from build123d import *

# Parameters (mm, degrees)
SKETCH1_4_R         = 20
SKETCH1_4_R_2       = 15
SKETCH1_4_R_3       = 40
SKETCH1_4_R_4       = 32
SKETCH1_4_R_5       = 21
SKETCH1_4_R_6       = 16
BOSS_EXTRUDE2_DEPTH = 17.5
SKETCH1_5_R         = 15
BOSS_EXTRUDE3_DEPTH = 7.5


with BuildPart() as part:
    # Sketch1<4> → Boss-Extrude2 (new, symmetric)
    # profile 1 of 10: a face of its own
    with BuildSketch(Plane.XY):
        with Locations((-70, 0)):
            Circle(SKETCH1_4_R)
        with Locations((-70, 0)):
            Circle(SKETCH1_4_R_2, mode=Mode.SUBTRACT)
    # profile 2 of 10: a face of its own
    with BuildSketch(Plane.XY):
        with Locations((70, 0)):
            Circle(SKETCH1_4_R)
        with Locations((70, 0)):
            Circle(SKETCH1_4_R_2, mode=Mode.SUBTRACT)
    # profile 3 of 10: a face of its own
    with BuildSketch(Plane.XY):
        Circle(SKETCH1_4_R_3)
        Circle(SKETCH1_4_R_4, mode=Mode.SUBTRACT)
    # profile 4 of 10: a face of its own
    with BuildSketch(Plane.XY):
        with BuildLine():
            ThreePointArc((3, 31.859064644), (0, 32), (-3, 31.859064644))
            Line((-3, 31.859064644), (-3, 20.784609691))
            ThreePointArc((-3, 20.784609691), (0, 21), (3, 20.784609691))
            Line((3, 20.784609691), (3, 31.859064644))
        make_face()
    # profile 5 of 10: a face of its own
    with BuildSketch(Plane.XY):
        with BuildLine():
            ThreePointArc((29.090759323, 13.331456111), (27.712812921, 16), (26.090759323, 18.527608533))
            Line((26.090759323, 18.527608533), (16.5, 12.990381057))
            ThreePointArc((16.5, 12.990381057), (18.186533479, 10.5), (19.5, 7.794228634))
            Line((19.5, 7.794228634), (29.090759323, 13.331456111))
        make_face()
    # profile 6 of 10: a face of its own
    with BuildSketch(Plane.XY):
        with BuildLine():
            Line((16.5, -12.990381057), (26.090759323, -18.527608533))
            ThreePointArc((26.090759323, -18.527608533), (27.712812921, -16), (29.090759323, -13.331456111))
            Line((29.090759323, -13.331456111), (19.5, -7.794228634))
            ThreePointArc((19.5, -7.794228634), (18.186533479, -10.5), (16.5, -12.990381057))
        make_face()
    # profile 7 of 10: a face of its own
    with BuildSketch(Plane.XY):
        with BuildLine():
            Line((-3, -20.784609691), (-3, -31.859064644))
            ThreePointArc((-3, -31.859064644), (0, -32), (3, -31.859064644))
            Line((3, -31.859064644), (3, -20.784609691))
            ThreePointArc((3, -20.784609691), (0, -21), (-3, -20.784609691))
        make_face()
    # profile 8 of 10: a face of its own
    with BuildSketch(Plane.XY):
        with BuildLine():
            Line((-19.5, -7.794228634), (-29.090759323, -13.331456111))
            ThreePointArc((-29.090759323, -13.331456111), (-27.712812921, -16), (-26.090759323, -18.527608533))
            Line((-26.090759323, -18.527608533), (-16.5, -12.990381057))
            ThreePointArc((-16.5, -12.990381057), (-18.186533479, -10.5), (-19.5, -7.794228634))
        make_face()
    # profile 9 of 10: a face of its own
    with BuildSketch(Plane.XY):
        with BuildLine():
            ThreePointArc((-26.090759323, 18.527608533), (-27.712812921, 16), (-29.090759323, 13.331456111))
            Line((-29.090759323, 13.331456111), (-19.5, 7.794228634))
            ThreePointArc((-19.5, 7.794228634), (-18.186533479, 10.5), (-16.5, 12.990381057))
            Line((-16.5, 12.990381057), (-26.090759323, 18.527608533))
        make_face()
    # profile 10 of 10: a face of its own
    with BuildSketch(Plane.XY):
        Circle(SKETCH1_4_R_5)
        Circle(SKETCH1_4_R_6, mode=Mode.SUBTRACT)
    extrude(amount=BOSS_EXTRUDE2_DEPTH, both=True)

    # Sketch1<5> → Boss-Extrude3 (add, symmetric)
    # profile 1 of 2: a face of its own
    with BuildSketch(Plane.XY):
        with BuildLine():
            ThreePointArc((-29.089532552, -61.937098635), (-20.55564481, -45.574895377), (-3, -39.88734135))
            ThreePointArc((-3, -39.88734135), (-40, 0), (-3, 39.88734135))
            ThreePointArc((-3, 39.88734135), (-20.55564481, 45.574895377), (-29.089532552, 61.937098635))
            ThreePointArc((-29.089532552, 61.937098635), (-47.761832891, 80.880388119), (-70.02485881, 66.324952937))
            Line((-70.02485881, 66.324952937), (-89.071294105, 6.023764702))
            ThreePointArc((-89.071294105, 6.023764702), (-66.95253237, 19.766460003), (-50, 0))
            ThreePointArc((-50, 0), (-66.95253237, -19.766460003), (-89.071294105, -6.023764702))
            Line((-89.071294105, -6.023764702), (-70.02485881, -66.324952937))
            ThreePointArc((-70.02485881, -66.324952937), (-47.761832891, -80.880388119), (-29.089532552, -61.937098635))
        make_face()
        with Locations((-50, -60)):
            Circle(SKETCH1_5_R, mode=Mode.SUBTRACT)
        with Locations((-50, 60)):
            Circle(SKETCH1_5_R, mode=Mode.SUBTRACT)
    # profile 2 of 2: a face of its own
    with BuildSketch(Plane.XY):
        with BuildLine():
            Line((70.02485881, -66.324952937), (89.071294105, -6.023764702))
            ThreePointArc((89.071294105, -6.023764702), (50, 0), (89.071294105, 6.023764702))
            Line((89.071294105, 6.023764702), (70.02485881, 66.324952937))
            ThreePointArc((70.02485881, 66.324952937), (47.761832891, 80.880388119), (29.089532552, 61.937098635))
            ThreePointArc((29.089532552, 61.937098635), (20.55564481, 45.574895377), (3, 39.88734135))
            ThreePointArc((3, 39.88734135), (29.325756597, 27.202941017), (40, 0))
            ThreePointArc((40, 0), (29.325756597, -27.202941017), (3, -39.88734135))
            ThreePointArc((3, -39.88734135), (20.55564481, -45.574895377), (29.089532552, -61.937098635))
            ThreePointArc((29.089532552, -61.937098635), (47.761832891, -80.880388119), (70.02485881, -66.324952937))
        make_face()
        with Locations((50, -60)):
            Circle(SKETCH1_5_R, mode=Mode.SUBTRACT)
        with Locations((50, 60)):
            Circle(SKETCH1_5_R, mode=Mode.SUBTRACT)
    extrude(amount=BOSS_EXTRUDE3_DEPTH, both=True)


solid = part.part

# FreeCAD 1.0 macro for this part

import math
import FreeCAD as App
import Part
import Sketcher
Q = App.Units.Quantity

doc = App.newDocument("Part")
params = doc.addObject("Spreadsheet::Sheet", "Params")
for row, (alias, value) in enumerate([
    ("sketch1_diameter", "40 mm"),
    ("sketch1_diameter2", "30 mm"),
    ("sketch1_diameter3", "80 mm"),
    ("sketch1_diameter4", "32 mm"),
    ("sketch1_radius", "32 mm"),
    ("pad1_length", "35 mm"),
    ("sketch2_diameter", "30 mm"),
    ("sketch2_radius", "40 mm"),
    ("sketch2_radius2", "21 mm"),
    ("sketch2_radius3", "20 mm"),
    ("pad2_length", "15 mm"),
], start=1):
    params.set(f"A{row}", alias)
    params.set(f"B{row}", "=" + value)
    params.setAlias(f"B{row}", alias)

body = doc.addObject("PartDesign::Body", "Body")
body.AllowCompound = True

# Sketch on XY plane
sketch1 = body.newObject("Sketcher::SketchObject", "Sketch")
sketch1.AttachmentSupport = (doc.getObject("XY_Plane"), [""])
sketch1.MapMode = "FlatFace"
sketch1.addGeometry(Part.Circle(App.Vector(-70, 0, 0), App.Vector(0, 0, 1), 20), False)
sketch1.addGeometry(Part.Circle(App.Vector(-70, 0, 0), App.Vector(0, 0, 1), 15), False)
sketch1.addGeometry(Part.Circle(App.Vector(70, 0, 0), App.Vector(0, 0, 1), 20), False)
sketch1.addGeometry(Part.Circle(App.Vector(70, 0, 0), App.Vector(0, 0, 1), 15), False)
sketch1.addGeometry(Part.Circle(App.Vector(0, 0, 0), App.Vector(0, 0, 1), 40), False)
sketch1.addGeometry(Part.ArcOfCircle(Part.Circle(App.Vector(0, 0, 0), App.Vector(0, 0, 1), 32), math.radians(-24.620621), math.radians(24.620621)), False)
sketch1.addGeometry(Part.LineSegment(App.Vector(29.090759, -13.331456, 0), App.Vector(19.5, -7.794229, 0)), False)
sketch1.addGeometry(Part.ArcOfCircle(Part.Circle(App.Vector(0, 0, 0), App.Vector(0, 0, 1), 21), math.radians(-21.786789), math.radians(21.786789)), False)
sketch1.addGeometry(Part.LineSegment(App.Vector(19.5, 7.794229, 0), App.Vector(29.090759, 13.331456, 0)), False)
sketch1.addGeometry(Part.ArcOfCircle(Part.Circle(App.Vector(0, 0, 0), App.Vector(0, 0, 1), 32), math.radians(35.379379), math.radians(84.620621)), False)
sketch1.addGeometry(Part.LineSegment(App.Vector(26.090759, 18.527609, 0), App.Vector(16.5, 12.990381, 0)), False)
sketch1.addGeometry(Part.ArcOfCircle(Part.Circle(App.Vector(0, 0, 0), App.Vector(0, 0, 1), 21), math.radians(38.213211), math.radians(81.786789)), False)
sketch1.addGeometry(Part.LineSegment(App.Vector(3, 20.78461, 0), App.Vector(3, 31.859065, 0)), False)
sketch1.addGeometry(Part.ArcOfCircle(Part.Circle(App.Vector(0, 0, 0), App.Vector(0, 0, 1), 32), math.radians(95.379379), math.radians(144.620621)), False)
sketch1.addGeometry(Part.LineSegment(App.Vector(-3, 31.859065, 0), App.Vector(-3, 20.78461, 0)), False)
sketch1.addGeometry(Part.ArcOfCircle(Part.Circle(App.Vector(0, 0, 0), App.Vector(0, 0, 1), 21), math.radians(98.213211), math.radians(141.786789)), False)
sketch1.addGeometry(Part.LineSegment(App.Vector(-16.5, 12.990381, 0), App.Vector(-26.090759, 18.527609, 0)), False)
sketch1.addGeometry(Part.ArcOfCircle(Part.Circle(App.Vector(0, 0, 0), App.Vector(0, 0, 1), 32), math.radians(155.379379), math.radians(204.620621)), False)
sketch1.addGeometry(Part.LineSegment(App.Vector(-29.090759, 13.331456, 0), App.Vector(-19.5, 7.794229, 0)), False)
sketch1.addGeometry(Part.ArcOfCircle(Part.Circle(App.Vector(0, 0, 0), App.Vector(0, 0, 1), 21), math.radians(158.213211), math.radians(201.786789)), False)
sketch1.addGeometry(Part.LineSegment(App.Vector(-19.5, -7.794229, 0), App.Vector(-29.090759, -13.331456, 0)), False)
sketch1.addGeometry(Part.ArcOfCircle(Part.Circle(App.Vector(0, 0, 0), App.Vector(0, 0, 1), 32), math.radians(-144.620621), math.radians(-95.379379)), False)
sketch1.addGeometry(Part.LineSegment(App.Vector(-26.090759, -18.527609, 0), App.Vector(-16.5, -12.990381, 0)), False)
sketch1.addGeometry(Part.ArcOfCircle(Part.Circle(App.Vector(0, 0, 0), App.Vector(0, 0, 1), 21), math.radians(-141.786789), math.radians(-98.213211)), False)
sketch1.addGeometry(Part.LineSegment(App.Vector(-3, -20.78461, 0), App.Vector(-3, -31.859065, 0)), False)
sketch1.addGeometry(Part.ArcOfCircle(Part.Circle(App.Vector(0, 0, 0), App.Vector(0, 0, 1), 32), math.radians(-84.620621), math.radians(-35.379379)), False)
sketch1.addGeometry(Part.LineSegment(App.Vector(3, -31.859065, 0), App.Vector(3, -20.78461, 0)), False)
sketch1.addGeometry(Part.ArcOfCircle(Part.Circle(App.Vector(0, 0, 0), App.Vector(0, 0, 1), 21), math.radians(-81.786789), math.radians(-38.213211)), False)
sketch1.addGeometry(Part.LineSegment(App.Vector(16.5, -12.990381, 0), App.Vector(26.090759, -18.527609, 0)), False)
sketch1.addGeometry(Part.Circle(App.Vector(0, 0, 0), App.Vector(0, 0, 1), 16), False)
sketch1.addConstraint(Sketcher.Constraint("Coincident", 5, 1, 6, 1))
sketch1.addConstraint(Sketcher.Constraint("Coincident", 6, 2, 7, 1))
sketch1.addConstraint(Sketcher.Constraint("Coincident", 7, 2, 8, 1))
sketch1.addConstraint(Sketcher.Constraint("Coincident", 8, 2, 5, 2))
sketch1.addConstraint(Sketcher.Constraint("Coincident", 9, 1, 10, 1))
sketch1.addConstraint(Sketcher.Constraint("Coincident", 10, 2, 11, 1))
sketch1.addConstraint(Sketcher.Constraint("Coincident", 11, 2, 12, 1))
sketch1.addConstraint(Sketcher.Constraint("Coincident", 12, 2, 9, 2))
sketch1.addConstraint(Sketcher.Constraint("Coincident", 13, 1, 14, 1))
sketch1.addConstraint(Sketcher.Constraint("Coincident", 14, 2, 15, 1))
sketch1.addConstraint(Sketcher.Constraint("Coincident", 15, 2, 16, 1))
sketch1.addConstraint(Sketcher.Constraint("Coincident", 16, 2, 13, 2))
sketch1.addConstraint(Sketcher.Constraint("Coincident", 17, 1, 18, 1))
sketch1.addConstraint(Sketcher.Constraint("Coincident", 18, 2, 19, 1))
sketch1.addConstraint(Sketcher.Constraint("Coincident", 19, 2, 20, 1))
sketch1.addConstraint(Sketcher.Constraint("Coincident", 20, 2, 17, 2))
sketch1.addConstraint(Sketcher.Constraint("Coincident", 21, 1, 22, 1))
sketch1.addConstraint(Sketcher.Constraint("Coincident", 22, 2, 23, 1))
sketch1.addConstraint(Sketcher.Constraint("Coincident", 23, 2, 24, 1))
sketch1.addConstraint(Sketcher.Constraint("Coincident", 24, 2, 21, 2))
sketch1.addConstraint(Sketcher.Constraint("Coincident", 25, 1, 26, 1))
sketch1.addConstraint(Sketcher.Constraint("Coincident", 26, 2, 27, 1))
sketch1.addConstraint(Sketcher.Constraint("Coincident", 27, 2, 28, 1))
sketch1.addConstraint(Sketcher.Constraint("Coincident", 28, 2, 25, 2))
sketch1.addConstraint(Sketcher.Constraint("Vertical", 12))
sketch1.addConstraint(Sketcher.Constraint("Vertical", 14))
sketch1.addConstraint(Sketcher.Constraint("Vertical", 24))
sketch1.addConstraint(Sketcher.Constraint("Vertical", 26))
sketch1.addConstraint(Sketcher.Constraint("Coincident", 4, 3, -1, 1))
sketch1.addConstraint(Sketcher.Constraint("Coincident", 5, 3, -1, 1))
sketch1.addConstraint(Sketcher.Constraint("Coincident", 7, 3, -1, 1))
sketch1.addConstraint(Sketcher.Constraint("Coincident", 9, 3, -1, 1))
sketch1.addConstraint(Sketcher.Constraint("Coincident", 11, 3, -1, 1))
sketch1.addConstraint(Sketcher.Constraint("Coincident", 13, 3, -1, 1))
sketch1.addConstraint(Sketcher.Constraint("Coincident", 15, 3, -1, 1))
sketch1.addConstraint(Sketcher.Constraint("Coincident", 17, 3, -1, 1))
sketch1.addConstraint(Sketcher.Constraint("Coincident", 19, 3, -1, 1))
sketch1.addConstraint(Sketcher.Constraint("Coincident", 21, 3, -1, 1))
sketch1.addConstraint(Sketcher.Constraint("Coincident", 23, 3, -1, 1))
sketch1.addConstraint(Sketcher.Constraint("Coincident", 25, 3, -1, 1))
sketch1.addConstraint(Sketcher.Constraint("Coincident", 27, 3, -1, 1))
sketch1.addConstraint(Sketcher.Constraint("Coincident", 29, 3, -1, 1))
sketch1.addConstraint(Sketcher.Constraint("Coincident", 1, 3, 0, 3))
sketch1.addConstraint(Sketcher.Constraint("Coincident", 3, 3, 2, 3))
sketch1.addConstraint(Sketcher.Constraint("Equal", 0, 2))
sketch1.addConstraint(Sketcher.Constraint("Equal", 1, 3))
sketch1.addConstraint(Sketcher.Constraint("Equal", 5, 9))
sketch1.addConstraint(Sketcher.Constraint("Equal", 7, 11))
sketch1.addConstraint(Sketcher.Constraint("Equal", 9, 13))
sketch1.addConstraint(Sketcher.Constraint("Equal", 11, 15))
sketch1.addConstraint(Sketcher.Constraint("Equal", 13, 17))
sketch1.addConstraint(Sketcher.Constraint("Equal", 15, 19))
sketch1.addConstraint(Sketcher.Constraint("Equal", 17, 21))
sketch1.addConstraint(Sketcher.Constraint("Equal", 19, 23))
sketch1.addConstraint(Sketcher.Constraint("Equal", 21, 25))
sketch1.addConstraint(Sketcher.Constraint("Equal", 23, 27))
sketch1.addConstraint(Sketcher.Constraint("Symmetric", 0, 3, 2, 3, -1, 1))
sketch1.addConstraint(Sketcher.Constraint("PointOnObject", 0, 3, -1))
sketch1.addConstraint(Sketcher.Constraint("Parallel", 8, 10))
sketch1.addConstraint(Sketcher.Constraint("Parallel", 6, 16))
sketch1.addConstraint(Sketcher.Constraint("Parallel", 16, 18))
sketch1.addConstraint(Sketcher.Constraint("Parallel", 10, 20))
sketch1.addConstraint(Sketcher.Constraint("Parallel", 20, 22))
sketch1.addConstraint(Sketcher.Constraint("Parallel", 18, 28))
sketch1.addConstraint(Sketcher.Constraint("Horizontal", 12, 2, 13, 1))
sketch1.addConstraint(Sketcher.Constraint("Horizontal", 10, 2, 15, 2))
sketch1.addConstraint(Sketcher.Constraint("Horizontal", 9, 1, 16, 2))
sketch1.addConstraint(Sketcher.Constraint("Horizontal", 8, 2, 17, 1))
sketch1.addConstraint(Sketcher.Constraint("Horizontal", 6, 2, 19, 2))
sketch1.addConstraint(Sketcher.Constraint("Horizontal", 24, 2, 25, 1))
sketch1.addConstraint(Sketcher.Constraint("Horizontal", 22, 2, 27, 2))
sketch1.addConstraint(Sketcher.Constraint("Vertical", 6, 2, 7, 2))
sketch1.addConstraint(Sketcher.Constraint("Vertical", 16, 2, 21, 1))
sketch1.addConstraint(Sketcher.Constraint("Vertical", 14, 2, 23, 2))
sketch1.addConstraint(Sketcher.Constraint("Equal", 8, 10))
sketch1.addConstraint(Sketcher.Constraint("Diameter", 0, Q("40 mm")))
sketch1.addConstraint(Sketcher.Constraint("Diameter", 1, Q("30 mm")))
sketch1.addConstraint(Sketcher.Constraint("Diameter", 4, Q("80 mm")))
sketch1.addConstraint(Sketcher.Constraint("Diameter", 29, Q("32 mm")))
sketch1.addConstraint(Sketcher.Constraint("Radius", 5, Q("32 mm")))
sketch1.addConstraint(Sketcher.Constraint("Radius", 7, Q("21 mm")))
sketch1.addConstraint(Sketcher.Constraint("Angle", 6, Q("150 deg")))
sketch1.addConstraint(Sketcher.Constraint("DistanceX", 0, 3, -1, 1, Q("70 mm")))
sketch1.addConstraint(Sketcher.Constraint("DistanceX", -1, 1, 11, 2, Q("3 mm")))
sketch1.addConstraint(Sketcher.Constraint("DistanceX", 9, 1, 8, 2, Q("3 mm")))
sketch1.setExpression("Constraints[75]", "Params.sketch1_diameter")
sketch1.setExpression("Constraints[76]", "Params.sketch1_diameter2")
sketch1.setExpression("Constraints[77]", "Params.sketch1_diameter3")
sketch1.setExpression("Constraints[78]", "Params.sketch1_diameter4")
sketch1.setExpression("Constraints[79]", "Params.sketch1_radius")
pad1 = body.newObject("PartDesign::Pad", "Pad")
pad1.Profile = sketch1
pad1.setExpression("Length", "Params.pad1_length")
pad1.Midplane = True

# Sketch on XY plane
sketch2 = body.newObject("Sketcher::SketchObject", "Sketch001")
sketch2.AttachmentSupport = (doc.getObject("XY_Plane"), [""])
sketch2.MapMode = "FlatFace"
sketch2.addGeometry(Part.ArcOfCircle(Part.Circle(App.Vector(-4.827448, -64.184684, 0), App.Vector(0, 0, 1), 24.365968), math.radians(85.698778), math.radians(174.707354)), False)
sketch2.addGeometry(Part.ArcOfCircle(Part.Circle(App.Vector(0, 0, 0), App.Vector(0, 0, 1), 40), math.radians(94.301222), math.radians(265.698778)), False)
sketch2.addGeometry(Part.ArcOfCircle(Part.Circle(App.Vector(-4.827448, 64.184684, 0), App.Vector(0, 0, 1), 24.365968), math.radians(-174.707354), math.radians(-85.698778)), False)
sketch2.addGeometry(Part.ArcOfCircle(Part.Circle(App.Vector(-50, 60, 0), App.Vector(0, 0, 1), 21), math.radians(5.292646), math.radians(162.471015)), False)
sketch2.addGeometry(Part.LineSegment(App.Vector(-70.024859, 66.324953, 0), App.Vector(-89.071294, 6.023765, 0)), False)
sketch2.addGeometry(Part.ArcOfCircle(Part.Circle(App.Vector(-70, 0, 0), App.Vector(0, 0, 1), 20), math.radians(0), math.radians(162.471015)), False)
sketch2.addGeometry(Part.ArcOfCircle(Part.Circle(App.Vector(-70, 0, 0), App.Vector(0, 0, 1), 20), math.radians(-162.471015), math.radians(0)), False)
sketch2.addGeometry(Part.LineSegment(App.Vector(-89.071294, -6.023765, 0), App.Vector(-70.024859, -66.324953, 0)), False)
sketch2.addGeometry(Part.ArcOfCircle(Part.Circle(App.Vector(-50, -60, 0), App.Vector(0, 0, 1), 21), math.radians(-162.471015), math.radians(-5.292646)), False)
sketch2.addGeometry(Part.Circle(App.Vector(-50, -60, 0), App.Vector(0, 0, 1), 15), False)
sketch2.addGeometry(Part.Circle(App.Vector(-50, 60, 0), App.Vector(0, 0, 1), 15), False)
sketch2.addGeometry(Part.LineSegment(App.Vector(70.024859, -66.324953, 0), App.Vector(89.071294, -6.023765, 0)), False)
sketch2.addGeometry(Part.ArcOfCircle(Part.Circle(App.Vector(70, 0, 0), App.Vector(0, 0, 1), 20), math.radians(17.528985), math.radians(342.471015)), False)
sketch2.addGeometry(Part.LineSegment(App.Vector(89.071294, 6.023765, 0), App.Vector(70.024859, 66.324953, 0)), False)
sketch2.addGeometry(Part.ArcOfCircle(Part.Circle(App.Vector(50, 60, 0), App.Vector(0, 0, 1), 21), math.radians(17.528985), math.radians(174.707354)), False)
sketch2.addGeometry(Part.ArcOfCircle(Part.Circle(App.Vector(4.827448, 64.184684, 0), App.Vector(0, 0, 1), 24.365968), math.radians(-94.301222), math.radians(-5.292646)), False)
sketch2.addGeometry(Part.ArcOfCircle(Part.Circle(App.Vector(0, 0, 0), App.Vector(0, 0, 1), 40), math.radians(0), math.radians(85.698778)), False)
sketch2.addGeometry(Part.ArcOfCircle(Part.Circle(App.Vector(0, 0, 0), App.Vector(0, 0, 1), 40), math.radians(-85.698778), math.radians(0)), False)
sketch2.addGeometry(Part.ArcOfCircle(Part.Circle(App.Vector(4.827448, -64.184684, 0), App.Vector(0, 0, 1), 24.365968), math.radians(5.292646), math.radians(94.301222)), False)
sketch2.addGeometry(Part.ArcOfCircle(Part.Circle(App.Vector(50, -60, 0), App.Vector(0, 0, 1), 21), math.radians(-174.707354), math.radians(-17.528985)), False)
sketch2.addGeometry(Part.Circle(App.Vector(50, -60, 0), App.Vector(0, 0, 1), 15), False)
sketch2.addGeometry(Part.Circle(App.Vector(50, 60, 0), App.Vector(0, 0, 1), 15), False)
sketch2.addConstraint(Sketcher.Constraint("Tangent", 0, 1, 1, 2))
sketch2.addConstraint(Sketcher.Constraint("Tangent", 1, 1, 2, 2))
sketch2.addConstraint(Sketcher.Constraint("Tangent", 2, 1, 3, 1))
sketch2.addConstraint(Sketcher.Constraint("Tangent", 3, 2, 4, 1))
sketch2.addConstraint(Sketcher.Constraint("Tangent", 4, 2, 5, 2))
sketch2.addConstraint(Sketcher.Constraint("Tangent", 5, 1, 6, 2))
sketch2.addConstraint(Sketcher.Constraint("Tangent", 6, 1, 7, 1))
sketch2.addConstraint(Sketcher.Constraint("Tangent", 7, 2, 8, 1))
sketch2.addConstraint(Sketcher.Constraint("Tangent", 8, 2, 0, 2))
sketch2.addConstraint(Sketcher.Constraint("Tangent", 11, 2, 12, 2))
sketch2.addConstraint(Sketcher.Constraint("Tangent", 12, 1, 13, 1))
sketch2.addConstraint(Sketcher.Constraint("Tangent", 13, 2, 14, 1))
sketch2.addConstraint(Sketcher.Constraint("Tangent", 14, 2, 15, 2))
sketch2.addConstraint(Sketcher.Constraint("Tangent", 15, 1, 16, 2))
sketch2.addConstraint(Sketcher.Constraint("Tangent", 16, 1, 17, 2))
sketch2.addConstraint(Sketcher.Constraint("Tangent", 17, 1, 18, 2))
sketch2.addConstraint(Sketcher.Constraint("Tangent", 18, 1, 19, 1))
sketch2.addConstraint(Sketcher.Constraint("Tangent", 19, 2, 11, 1))
sketch2.addConstraint(Sketcher.Constraint("Coincident", 1, 3, -1, 1))
sketch2.addConstraint(Sketcher.Constraint("Coincident", 16, 3, -1, 1))
sketch2.addConstraint(Sketcher.Constraint("Coincident", 9, 3, 8, 3))
sketch2.addConstraint(Sketcher.Constraint("Coincident", 10, 3, 3, 3))
sketch2.addConstraint(Sketcher.Constraint("Coincident", 20, 3, 19, 3))
sketch2.addConstraint(Sketcher.Constraint("Coincident", 21, 3, 14, 3))
sketch2.addConstraint(Sketcher.Constraint("Equal", 0, 2))
sketch2.addConstraint(Sketcher.Constraint("Equal", 5, 6))
sketch2.addConstraint(Sketcher.Constraint("Equal", 3, 8))
sketch2.addConstraint(Sketcher.Constraint("Equal", 9, 10))
sketch2.addConstraint(Sketcher.Constraint("Equal", 6, 12))
sketch2.addConstraint(Sketcher.Constraint("Equal", 8, 14))
sketch2.addConstraint(Sketcher.Constraint("Equal", 2, 15))
sketch2.addConstraint(Sketcher.Constraint("Equal", 1, 16))
sketch2.addConstraint(Sketcher.Constraint("Equal", 16, 17))
sketch2.addConstraint(Sketcher.Constraint("Equal", 15, 18))
sketch2.addConstraint(Sketcher.Constraint("Equal", 14, 19))
sketch2.addConstraint(Sketcher.Constraint("Equal", 10, 20))
sketch2.addConstraint(Sketcher.Constraint("Equal", 20, 21))
sketch2.addConstraint(Sketcher.Constraint("Symmetric", 5, 3, 12, 3, -1, 1))
sketch2.addConstraint(Sketcher.Constraint("Symmetric", 8, 3, 14, 3, -1, 1))
sketch2.addConstraint(Sketcher.Constraint("Symmetric", 3, 3, 19, 3, -1, 1))
sketch2.addConstraint(Sketcher.Constraint("Symmetric", 3, 3, 14, 3, -2))
sketch2.addConstraint(Sketcher.Constraint("PointOnObject", 5, 3, -1))
sketch2.addConstraint(Sketcher.Constraint("PointOnObject", 5, 1, -1))
sketch2.addConstraint(Sketcher.Constraint("PointOnObject", 16, 1, -1))
sketch2.addConstraint(Sketcher.Constraint("Vertical", 10, 3, 5, 1))
sketch2.addConstraint(Sketcher.Constraint("Diameter", 9, Q("30 mm")))
sketch2.addConstraint(Sketcher.Constraint("Radius", 1, Q("40 mm")))
sketch2.addConstraint(Sketcher.Constraint("Radius", 3, Q("21 mm")))
sketch2.addConstraint(Sketcher.Constraint("Radius", 5, Q("20 mm")))
sketch2.addConstraint(Sketcher.Constraint("DistanceX", 3, 3, -1, 1, Q("50 mm")))
sketch2.addConstraint(Sketcher.Constraint("DistanceY", -1, 1, 3, 3, Q("60 mm")))
sketch2.addConstraint(Sketcher.Constraint("DistanceX", 0, 1, -1, 1, Q("3 mm")))
sketch2.setExpression("Constraints[45]", "Params.sketch2_diameter")
sketch2.setExpression("Constraints[46]", "Params.sketch2_radius")
sketch2.setExpression("Constraints[47]", "Params.sketch2_radius2")
sketch2.setExpression("Constraints[48]", "Params.sketch2_radius3")
pad2 = body.newObject("PartDesign::Pad", "Pad001")
pad2.Profile = sketch2
pad2.setExpression("Length", "Params.pad2_length")
pad2.Midplane = True

doc.recompute()
